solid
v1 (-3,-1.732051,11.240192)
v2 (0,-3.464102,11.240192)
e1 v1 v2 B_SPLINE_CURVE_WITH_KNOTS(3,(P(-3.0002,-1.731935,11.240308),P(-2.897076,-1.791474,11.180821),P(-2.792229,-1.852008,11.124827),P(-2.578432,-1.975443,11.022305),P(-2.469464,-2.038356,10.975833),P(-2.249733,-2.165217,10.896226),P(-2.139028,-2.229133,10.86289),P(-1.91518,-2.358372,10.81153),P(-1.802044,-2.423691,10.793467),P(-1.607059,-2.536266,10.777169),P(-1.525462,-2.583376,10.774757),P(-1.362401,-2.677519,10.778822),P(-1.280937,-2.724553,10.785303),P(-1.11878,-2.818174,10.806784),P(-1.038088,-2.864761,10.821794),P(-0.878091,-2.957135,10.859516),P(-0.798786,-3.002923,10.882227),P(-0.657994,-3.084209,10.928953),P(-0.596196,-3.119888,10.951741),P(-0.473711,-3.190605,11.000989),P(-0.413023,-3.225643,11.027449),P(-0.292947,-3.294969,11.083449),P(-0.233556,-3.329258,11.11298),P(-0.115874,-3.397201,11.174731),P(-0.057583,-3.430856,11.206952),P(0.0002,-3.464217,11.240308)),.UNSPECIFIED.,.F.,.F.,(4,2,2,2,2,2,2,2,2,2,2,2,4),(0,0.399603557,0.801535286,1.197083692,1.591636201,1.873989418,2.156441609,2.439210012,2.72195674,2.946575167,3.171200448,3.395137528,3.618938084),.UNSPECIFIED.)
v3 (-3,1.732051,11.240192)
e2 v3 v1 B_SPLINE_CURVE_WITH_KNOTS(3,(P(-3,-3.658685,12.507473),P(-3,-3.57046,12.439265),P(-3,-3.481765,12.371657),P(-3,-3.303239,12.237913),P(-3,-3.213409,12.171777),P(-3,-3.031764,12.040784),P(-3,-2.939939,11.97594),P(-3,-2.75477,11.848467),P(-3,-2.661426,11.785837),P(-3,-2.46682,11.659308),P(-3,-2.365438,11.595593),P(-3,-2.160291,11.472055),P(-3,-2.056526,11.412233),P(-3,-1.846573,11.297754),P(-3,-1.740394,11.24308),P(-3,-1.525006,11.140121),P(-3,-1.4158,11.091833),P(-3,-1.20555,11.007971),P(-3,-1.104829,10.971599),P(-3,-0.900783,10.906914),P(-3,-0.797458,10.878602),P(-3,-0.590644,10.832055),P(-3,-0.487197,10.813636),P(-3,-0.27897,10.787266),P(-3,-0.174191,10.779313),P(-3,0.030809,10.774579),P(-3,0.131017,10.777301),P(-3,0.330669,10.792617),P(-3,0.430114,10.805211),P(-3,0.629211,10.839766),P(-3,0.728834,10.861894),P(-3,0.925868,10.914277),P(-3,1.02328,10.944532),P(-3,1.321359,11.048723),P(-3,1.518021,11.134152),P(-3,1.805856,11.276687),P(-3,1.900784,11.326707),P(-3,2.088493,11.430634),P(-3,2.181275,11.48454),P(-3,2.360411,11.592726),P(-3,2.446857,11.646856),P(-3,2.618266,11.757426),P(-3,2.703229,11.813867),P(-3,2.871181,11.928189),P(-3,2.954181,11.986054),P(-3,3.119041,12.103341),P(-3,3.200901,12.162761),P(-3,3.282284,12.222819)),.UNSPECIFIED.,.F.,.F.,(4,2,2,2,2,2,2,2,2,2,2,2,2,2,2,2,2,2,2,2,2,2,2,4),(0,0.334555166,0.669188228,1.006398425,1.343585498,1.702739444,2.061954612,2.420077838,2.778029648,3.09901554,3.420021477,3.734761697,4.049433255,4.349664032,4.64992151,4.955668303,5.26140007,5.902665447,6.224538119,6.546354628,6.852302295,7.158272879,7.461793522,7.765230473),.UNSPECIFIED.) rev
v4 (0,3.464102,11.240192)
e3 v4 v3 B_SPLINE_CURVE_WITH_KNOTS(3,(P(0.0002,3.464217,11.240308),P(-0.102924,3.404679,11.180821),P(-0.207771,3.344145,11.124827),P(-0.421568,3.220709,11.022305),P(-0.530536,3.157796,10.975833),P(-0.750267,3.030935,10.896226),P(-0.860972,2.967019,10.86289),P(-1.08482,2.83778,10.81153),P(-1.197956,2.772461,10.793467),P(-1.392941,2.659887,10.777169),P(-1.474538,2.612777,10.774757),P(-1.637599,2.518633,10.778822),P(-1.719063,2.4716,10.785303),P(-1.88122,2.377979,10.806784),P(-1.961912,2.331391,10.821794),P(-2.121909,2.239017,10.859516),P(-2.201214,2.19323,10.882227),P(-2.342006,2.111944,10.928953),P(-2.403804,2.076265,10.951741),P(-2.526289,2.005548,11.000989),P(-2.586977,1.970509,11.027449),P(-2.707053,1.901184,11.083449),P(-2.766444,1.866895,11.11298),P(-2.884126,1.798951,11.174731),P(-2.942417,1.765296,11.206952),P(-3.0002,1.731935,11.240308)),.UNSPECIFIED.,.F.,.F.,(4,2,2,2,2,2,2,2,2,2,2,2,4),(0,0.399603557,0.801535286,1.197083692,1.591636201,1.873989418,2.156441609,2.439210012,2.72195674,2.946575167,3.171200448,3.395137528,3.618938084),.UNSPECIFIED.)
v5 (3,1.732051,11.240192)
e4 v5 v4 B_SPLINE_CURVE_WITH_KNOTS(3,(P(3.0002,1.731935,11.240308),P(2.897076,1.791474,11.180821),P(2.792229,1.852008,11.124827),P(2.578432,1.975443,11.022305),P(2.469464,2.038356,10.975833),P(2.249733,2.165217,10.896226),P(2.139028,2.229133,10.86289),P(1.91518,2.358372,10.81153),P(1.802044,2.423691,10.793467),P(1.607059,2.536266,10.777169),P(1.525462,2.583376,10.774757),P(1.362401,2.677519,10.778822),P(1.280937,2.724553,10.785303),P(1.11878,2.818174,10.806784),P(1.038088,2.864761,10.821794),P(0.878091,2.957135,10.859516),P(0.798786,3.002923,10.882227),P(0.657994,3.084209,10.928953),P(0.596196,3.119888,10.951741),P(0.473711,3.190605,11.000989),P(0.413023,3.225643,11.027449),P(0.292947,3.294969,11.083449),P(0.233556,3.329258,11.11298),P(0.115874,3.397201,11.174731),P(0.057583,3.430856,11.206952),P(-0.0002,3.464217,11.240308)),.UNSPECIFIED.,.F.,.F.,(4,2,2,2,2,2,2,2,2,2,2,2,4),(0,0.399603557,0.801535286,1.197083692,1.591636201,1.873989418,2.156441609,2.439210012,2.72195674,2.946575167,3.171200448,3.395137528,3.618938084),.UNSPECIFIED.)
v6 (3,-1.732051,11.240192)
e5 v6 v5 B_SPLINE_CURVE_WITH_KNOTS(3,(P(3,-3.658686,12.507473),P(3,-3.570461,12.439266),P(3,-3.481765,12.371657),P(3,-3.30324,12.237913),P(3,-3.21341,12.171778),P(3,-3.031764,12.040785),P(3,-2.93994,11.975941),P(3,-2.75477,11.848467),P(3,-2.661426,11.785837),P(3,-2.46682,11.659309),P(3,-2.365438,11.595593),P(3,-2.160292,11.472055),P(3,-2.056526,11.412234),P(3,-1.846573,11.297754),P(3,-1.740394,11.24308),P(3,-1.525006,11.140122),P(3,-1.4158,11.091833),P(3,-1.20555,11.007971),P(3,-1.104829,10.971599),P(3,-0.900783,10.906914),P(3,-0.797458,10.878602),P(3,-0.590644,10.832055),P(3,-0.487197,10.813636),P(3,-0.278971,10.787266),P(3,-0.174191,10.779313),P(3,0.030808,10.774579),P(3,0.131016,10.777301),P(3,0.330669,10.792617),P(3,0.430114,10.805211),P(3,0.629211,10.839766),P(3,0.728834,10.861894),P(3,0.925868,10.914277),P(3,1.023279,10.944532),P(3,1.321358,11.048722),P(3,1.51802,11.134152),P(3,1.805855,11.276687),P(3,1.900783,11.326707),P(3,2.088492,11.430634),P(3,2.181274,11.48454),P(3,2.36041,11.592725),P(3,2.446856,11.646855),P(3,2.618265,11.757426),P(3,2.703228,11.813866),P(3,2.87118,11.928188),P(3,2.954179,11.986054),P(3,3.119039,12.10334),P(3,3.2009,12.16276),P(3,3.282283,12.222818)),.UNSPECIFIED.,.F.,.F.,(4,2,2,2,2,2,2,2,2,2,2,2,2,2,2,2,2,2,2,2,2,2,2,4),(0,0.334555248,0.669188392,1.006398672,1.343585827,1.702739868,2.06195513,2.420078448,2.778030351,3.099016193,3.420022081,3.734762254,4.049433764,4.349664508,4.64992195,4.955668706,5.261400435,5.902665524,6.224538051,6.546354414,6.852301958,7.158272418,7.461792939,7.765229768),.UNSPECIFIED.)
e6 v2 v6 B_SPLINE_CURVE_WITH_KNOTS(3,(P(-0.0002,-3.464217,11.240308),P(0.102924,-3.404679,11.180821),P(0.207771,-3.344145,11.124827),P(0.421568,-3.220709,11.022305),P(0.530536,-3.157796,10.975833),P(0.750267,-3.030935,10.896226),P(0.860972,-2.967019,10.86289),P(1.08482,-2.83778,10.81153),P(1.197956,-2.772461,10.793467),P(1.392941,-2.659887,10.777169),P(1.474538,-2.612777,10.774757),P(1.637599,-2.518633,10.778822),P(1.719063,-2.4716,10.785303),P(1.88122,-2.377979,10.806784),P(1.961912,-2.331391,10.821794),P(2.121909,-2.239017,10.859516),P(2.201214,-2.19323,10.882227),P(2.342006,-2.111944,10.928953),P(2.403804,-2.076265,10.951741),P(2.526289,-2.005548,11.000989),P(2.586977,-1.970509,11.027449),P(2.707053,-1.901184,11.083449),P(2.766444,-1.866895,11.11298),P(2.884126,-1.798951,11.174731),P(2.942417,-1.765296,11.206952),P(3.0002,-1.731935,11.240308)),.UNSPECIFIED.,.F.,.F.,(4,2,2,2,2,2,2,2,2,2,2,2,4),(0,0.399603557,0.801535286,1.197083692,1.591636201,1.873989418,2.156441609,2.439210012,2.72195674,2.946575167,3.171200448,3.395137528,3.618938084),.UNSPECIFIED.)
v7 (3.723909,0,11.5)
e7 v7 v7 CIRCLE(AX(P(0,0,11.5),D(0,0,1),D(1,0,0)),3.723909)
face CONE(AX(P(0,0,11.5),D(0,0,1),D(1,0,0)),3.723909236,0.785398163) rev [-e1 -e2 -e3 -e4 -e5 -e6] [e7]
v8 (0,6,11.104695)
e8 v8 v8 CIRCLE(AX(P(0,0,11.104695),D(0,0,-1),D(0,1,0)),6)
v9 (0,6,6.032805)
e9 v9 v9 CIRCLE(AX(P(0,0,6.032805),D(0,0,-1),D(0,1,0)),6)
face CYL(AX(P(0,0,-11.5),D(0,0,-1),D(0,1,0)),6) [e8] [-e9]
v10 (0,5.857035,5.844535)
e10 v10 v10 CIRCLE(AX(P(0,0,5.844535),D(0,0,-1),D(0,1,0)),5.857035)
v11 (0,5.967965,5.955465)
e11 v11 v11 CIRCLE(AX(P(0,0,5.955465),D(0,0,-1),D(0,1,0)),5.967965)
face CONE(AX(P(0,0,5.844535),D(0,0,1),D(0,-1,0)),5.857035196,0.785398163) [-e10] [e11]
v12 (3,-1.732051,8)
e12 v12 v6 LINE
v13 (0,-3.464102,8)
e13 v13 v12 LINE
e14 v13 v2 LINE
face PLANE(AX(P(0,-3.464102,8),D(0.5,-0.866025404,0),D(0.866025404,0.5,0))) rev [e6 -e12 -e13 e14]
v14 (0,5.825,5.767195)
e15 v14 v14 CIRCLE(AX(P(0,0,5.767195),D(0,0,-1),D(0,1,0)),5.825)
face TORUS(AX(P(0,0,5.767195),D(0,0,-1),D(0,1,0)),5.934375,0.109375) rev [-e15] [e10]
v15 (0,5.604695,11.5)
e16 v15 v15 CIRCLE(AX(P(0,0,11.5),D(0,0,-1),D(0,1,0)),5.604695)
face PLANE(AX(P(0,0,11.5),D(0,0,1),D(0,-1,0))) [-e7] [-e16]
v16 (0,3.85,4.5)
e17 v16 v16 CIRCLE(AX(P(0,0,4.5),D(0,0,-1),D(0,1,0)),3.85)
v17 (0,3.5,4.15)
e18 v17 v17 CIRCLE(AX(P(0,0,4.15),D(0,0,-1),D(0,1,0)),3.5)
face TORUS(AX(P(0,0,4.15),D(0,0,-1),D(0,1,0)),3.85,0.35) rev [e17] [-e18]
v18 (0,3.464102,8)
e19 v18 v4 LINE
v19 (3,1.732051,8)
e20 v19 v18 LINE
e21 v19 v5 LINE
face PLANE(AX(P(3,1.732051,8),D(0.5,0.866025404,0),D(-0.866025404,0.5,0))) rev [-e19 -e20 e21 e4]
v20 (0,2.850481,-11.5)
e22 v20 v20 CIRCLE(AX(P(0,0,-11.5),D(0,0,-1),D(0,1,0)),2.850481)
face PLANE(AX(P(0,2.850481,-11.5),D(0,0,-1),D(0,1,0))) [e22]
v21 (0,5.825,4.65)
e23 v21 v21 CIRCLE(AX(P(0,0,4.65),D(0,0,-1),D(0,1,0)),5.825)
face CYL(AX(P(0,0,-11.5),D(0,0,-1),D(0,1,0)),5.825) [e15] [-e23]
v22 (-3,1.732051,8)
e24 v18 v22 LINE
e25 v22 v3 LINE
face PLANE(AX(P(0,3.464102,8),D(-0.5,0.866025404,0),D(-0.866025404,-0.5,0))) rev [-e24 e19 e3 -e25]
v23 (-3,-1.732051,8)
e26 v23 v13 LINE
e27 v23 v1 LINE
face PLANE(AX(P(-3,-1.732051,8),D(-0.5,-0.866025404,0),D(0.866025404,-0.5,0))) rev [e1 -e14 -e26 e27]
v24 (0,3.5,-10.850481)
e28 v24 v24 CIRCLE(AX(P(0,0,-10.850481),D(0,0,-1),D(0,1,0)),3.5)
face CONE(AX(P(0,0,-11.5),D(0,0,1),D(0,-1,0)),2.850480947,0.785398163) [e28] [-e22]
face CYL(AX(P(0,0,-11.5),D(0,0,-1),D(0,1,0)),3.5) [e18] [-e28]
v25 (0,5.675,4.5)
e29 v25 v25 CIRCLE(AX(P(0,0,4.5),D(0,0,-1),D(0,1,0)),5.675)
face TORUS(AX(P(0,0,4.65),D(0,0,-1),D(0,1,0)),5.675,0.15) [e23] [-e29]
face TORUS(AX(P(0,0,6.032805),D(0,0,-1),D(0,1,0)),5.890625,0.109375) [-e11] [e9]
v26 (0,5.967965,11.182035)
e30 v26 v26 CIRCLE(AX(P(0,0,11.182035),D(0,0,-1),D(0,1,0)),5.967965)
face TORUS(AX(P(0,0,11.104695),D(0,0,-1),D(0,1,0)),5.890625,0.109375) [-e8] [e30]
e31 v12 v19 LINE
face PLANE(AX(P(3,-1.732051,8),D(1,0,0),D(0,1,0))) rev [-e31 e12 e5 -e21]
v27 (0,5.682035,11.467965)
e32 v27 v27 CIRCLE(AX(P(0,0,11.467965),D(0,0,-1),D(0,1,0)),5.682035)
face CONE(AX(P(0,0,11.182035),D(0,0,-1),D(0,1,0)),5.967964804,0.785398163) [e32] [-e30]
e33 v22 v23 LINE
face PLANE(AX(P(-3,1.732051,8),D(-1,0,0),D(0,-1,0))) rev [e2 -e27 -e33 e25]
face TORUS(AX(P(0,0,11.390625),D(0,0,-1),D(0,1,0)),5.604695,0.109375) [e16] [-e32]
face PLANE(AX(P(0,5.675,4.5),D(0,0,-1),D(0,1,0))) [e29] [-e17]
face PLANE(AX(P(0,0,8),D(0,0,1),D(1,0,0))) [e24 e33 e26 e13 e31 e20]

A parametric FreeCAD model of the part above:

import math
import FreeCAD as App
import Part
import Sketcher

V = App.Vector
Q = App.Units.Quantity


def faces_at(feature, points):
    """Names of the faces that lie closest to the given points."""
    faces = feature.Shape.Faces
    near = lambda p: min(range(len(faces)), key=lambda i: faces[i].distToShape(Part.Vertex(*p))[0])
    return sorted({f"Face{near(p) + 1}" for p in points})

doc = App.newDocument("Part")
body = doc.addObject("PartDesign::Body", "Body")

sketch1 = body.newObject("Sketcher::SketchObject", "Sketch")
sketch1.AttachmentSupport = (doc.getObject("YZ_Plane"), [""])
sketch1.MapMode = "FlatFace"
sketch1.addGeometry(Part.LineSegment(V(5.6, 11.5, 0), V(0, 11.5, 0)), False)
sketch1.addGeometry(Part.LineSegment(V(0, 11.5, 0), V(0, -11.5, 0)), False)
sketch1.addGeometry(Part.LineSegment(V(0, -11.5, 0), V(2.85, -11.5, 0)), False)
sketch1.addGeometry(Part.LineSegment(V(2.85, -11.5, 0), V(3.5, -10.85, 0)), False)
sketch1.addGeometry(Part.LineSegment(V(3.5, -10.85, 0), V(3.5, 4.15, 0)), False)
sketch1.addGeometry(Part.ArcOfCircle(Part.Circle(V(3.85, 4.15, 0), V(0, 0, 1), 0.35), math.radians(90), math.radians(180)), False)
sketch1.addGeometry(Part.LineSegment(V(3.85, 4.5, 0), V(5.67, 4.5, 0)), False)
sketch1.addGeometry(Part.ArcOfCircle(Part.Circle(V(5.67, 4.65, 0), V(0, 0, 1), 0.15), math.radians(-90), math.radians(0)), False)
sketch1.addGeometry(Part.LineSegment(V(5.83, 4.65, 0), V(5.83, 5.77, 0)), False)
sketch1.addGeometry(Part.ArcOfCircle(Part.Circle(V(5.93, 5.77, 0), V(0, 0, 1), 0.11), math.radians(135), math.radians(180)), False)
sketch1.addGeometry(Part.LineSegment(V(5.86, 5.84, 0), V(5.97, 5.96, 0)), False)
sketch1.addGeometry(Part.ArcOfCircle(Part.Circle(V(5.89, 6.03, 0), V(0, 0, 1), 0.11), math.radians(-45), math.radians(0)), False)
sketch1.addGeometry(Part.LineSegment(V(6, 6.03, 0), V(6, 11.1, 0)), False)
sketch1.addGeometry(Part.ArcOfCircle(Part.Circle(V(5.89, 11.1, 0), V(0, 0, 1), 0.11), math.radians(0), math.radians(45)), False)
sketch1.addGeometry(Part.LineSegment(V(5.97, 11.18, 0), V(5.68, 11.47, 0)), False)
sketch1.addGeometry(Part.ArcOfCircle(Part.Circle(V(5.6, 11.39, 0), V(0, 0, 1), 0.11), math.radians(45), math.radians(90)), False)
sketch1.addConstraint(Sketcher.Constraint("Coincident", 0, 2, 1, 1))
sketch1.addConstraint(Sketcher.Constraint("Coincident", 1, 2, 2, 1))
sketch1.addConstraint(Sketcher.Constraint("Coincident", 2, 2, 3, 1))
sketch1.addConstraint(Sketcher.Constraint("Coincident", 3, 2, 4, 1))
sketch1.addConstraint(Sketcher.Constraint("Tangent", 4, 2, 5, 2))
sketch1.addConstraint(Sketcher.Constraint("Tangent", 5, 1, 6, 1))
sketch1.addConstraint(Sketcher.Constraint("Tangent", 6, 2, 7, 1))
sketch1.addConstraint(Sketcher.Constraint("Tangent", 7, 2, 8, 1))
sketch1.addConstraint(Sketcher.Constraint("Tangent", 8, 2, 9, 2))
sketch1.addConstraint(Sketcher.Constraint("Tangent", 9, 1, 10, 1))
sketch1.addConstraint(Sketcher.Constraint("Tangent", 10, 2, 11, 1))
sketch1.addConstraint(Sketcher.Constraint("Tangent", 11, 2, 12, 1))
sketch1.addConstraint(Sketcher.Constraint("Tangent", 12, 2, 13, 1))
sketch1.addConstraint(Sketcher.Constraint("Tangent", 13, 2, 14, 1))
sketch1.addConstraint(Sketcher.Constraint("Tangent", 14, 2, 15, 1))
sketch1.addConstraint(Sketcher.Constraint("Tangent", 15, 2, 0, 1))
sketch1.addConstraint(Sketcher.Constraint("Horizontal", 0))
sketch1.addConstraint(Sketcher.Constraint("Vertical", 1))
sketch1.addConstraint(Sketcher.Constraint("Horizontal", 2))
sketch1.addConstraint(Sketcher.Constraint("Vertical", 4))
sketch1.addConstraint(Sketcher.Constraint("Horizontal", 6))
sketch1.addConstraint(Sketcher.Constraint("Vertical", 8))
sketch1.addConstraint(Sketcher.Constraint("Vertical", 12))
sketch1.addConstraint(Sketcher.Constraint("Equal", 9, 11))
sketch1.addConstraint(Sketcher.Constraint("Equal", 11, 13))
sketch1.addConstraint(Sketcher.Constraint("Equal", 13, 15))
sketch1.addConstraint(Sketcher.Constraint("Symmetric", 0, 2, 1, 2, -1, 1))
sketch1.addConstraint(Sketcher.Constraint("Parallel", 3, 10))
sketch1.addConstraint(Sketcher.Constraint("Perpendicular", 10, 14))
sketch1.addConstraint(Sketcher.Constraint("Vertical", 10, 2, 13, 2))
sketch1.addConstraint(Sketcher.Constraint("DistanceY", 1, 2, 1, 1, 23.0))
sketch1.addConstraint(Sketcher.Constraint("Radius", 5, 0.35))
sketch1.addConstraint(Sketcher.Constraint("Radius", 7, 0.15))
sketch1.addConstraint(Sketcher.Constraint("DistanceX", -1, 1, 11, 2, 6.0))
sketch1.addConstraint(Sketcher.Constraint("DistanceX", -1, 1, 3, 2, 3.5))
sketch1.addConstraint(Sketcher.Constraint("DistanceY", -1, 1, 5, 1, 4.5))
sketch1.addConstraint(Sketcher.Constraint("DistanceX", 6, 1, 6, 2, 1.825))
sketch1.addConstraint(Sketcher.Constraint("Radius", 9, 0.109375))
sketch1.addConstraint(Sketcher.Constraint("DistanceX", 2, 1, 2, 2, 2.850481))
sketch1.addConstraint(Sketcher.Constraint("DistanceY", 12, 1, 12, 2, 5.071891))
sketch1.addConstraint(Sketcher.Constraint("DistanceX", 0, 2, 0, 1, 5.604695))
revolution = body.newObject("PartDesign::Revolution", "Revolution")
revolution.Profile = sketch1
revolution.ReferenceAxis = (sketch1, ["V_Axis"])
revolution.Angle = 360

sketch2 = body.newObject("Sketcher::SketchObject", "Sketch001")
sketch2.AttachmentSupport = (doc.getObject("XY_Plane"), [""])
sketch2.MapMode = "FlatFace"
sketch2.AttachmentOffset = App.Placement(V(0, 0, 8), App.Rotation())
sketch2.addGeometry(Part.LineSegment(V(3, -1.7, 0), V(3, 1.7, 0)), False)
sketch2.addGeometry(Part.LineSegment(V(3, 1.7, 0), V(0, 3.5, 0)), False)
sketch2.addGeometry(Part.LineSegment(V(0, 3.5, 0), V(-3, 1.7, 0)), False)
sketch2.addGeometry(Part.LineSegment(V(-3, 1.7, 0), V(-3, -1.7, 0)), False)
sketch2.addGeometry(Part.LineSegment(V(-3, -1.7, 0), V(0, -3.5, 0)), False)
sketch2.addGeometry(Part.LineSegment(V(0, -3.5, 0), V(3, -1.7, 0)), False)
sketch2.addConstraint(Sketcher.Constraint("Coincident", 0, 2, 1, 1))
sketch2.addConstraint(Sketcher.Constraint("Coincident", 1, 2, 2, 1))
sketch2.addConstraint(Sketcher.Constraint("Coincident", 2, 2, 3, 1))
sketch2.addConstraint(Sketcher.Constraint("Coincident", 3, 2, 4, 1))
sketch2.addConstraint(Sketcher.Constraint("Coincident", 4, 2, 5, 1))
sketch2.addConstraint(Sketcher.Constraint("Coincident", 5, 2, 0, 1))
sketch2.addConstraint(Sketcher.Constraint("Vertical", 0))
sketch2.addConstraint(Sketcher.Constraint("Vertical", 3))
sketch2.addConstraint(Sketcher.Constraint("Symmetric", 0, 2, 3, 2, -1, 1))
sketch2.addConstraint(Sketcher.Constraint("Symmetric", 1, 2, 4, 2, -1, 1))
sketch2.addConstraint(Sketcher.Constraint("PointOnObject", 1, 2, -2))
sketch2.addConstraint(Sketcher.Constraint("Parallel", 2, 5))
sketch2.addConstraint(Sketcher.Constraint("Horizontal", 0, 2, 2, 2))
sketch2.addConstraint(Sketcher.Constraint("Angle", 1, Q("150 deg")))
sketch2.addConstraint(Sketcher.Constraint("DistanceX", -1, 1, 0, 2, 3.0))
sketch2.addConstraint(Sketcher.Constraint("DistanceY", 0, 1, 0, 2, 3.464102))
pocket1 = body.newObject("PartDesign::Pocket", "Pocket")
pocket1.Profile = sketch2
pocket1.Length = 3.5
pocket1.Reversed = True
body2 = doc.addObject("PartDesign::Body", "Body001")

sketch3 = body2.newObject("Sketcher::SketchObject", "Sketch002")
sketch3.AttachmentSupport = (doc.getObject("XY_Plane001"), [""])
sketch3.MapMode = "FlatFace"
sketch3.AttachmentOffset = App.Placement(V(0, 0, 11.5), App.Rotation())
sketch3.addGeometry(Part.Circle(V(0, 0, 0), V(0, 0, 1), 3.7), False)
sketch3.addConstraint(Sketcher.Constraint("Coincident", 0, 3, -1, 1))
sketch3.addConstraint(Sketcher.Constraint("Diameter", 0, 7.447818))
pad1 = body2.newObject("PartDesign::Pad", "Pad")
pad1.Profile = sketch3
pad1.Length = 3.5
pad1.Reversed = True
doc.recompute()

datumplane = body2.newObject("PartDesign::Plane", "DatumPlane")
datumplane.AttachmentSupport = (doc.getObject("XY_Plane001"), [""])
datumplane.MapMode = "FlatFace"
datumplane.AttachmentOffset = App.Placement(V(0, 0, 11.5), App.Rotation())
draft = body2.newObject("PartDesign::Draft", "Draft")
draft.Base = (pad1, faces_at(pad1, [(-3.724, 0, 9.75)]))
draft.NeutralPlane = (datumplane, [""])
draft.Angle = 45
draft.Reversed = True
doc.recompute()

boolean = body.newObject("PartDesign::Boolean", "Boolean")
boolean.Type = "Cut"
boolean.addObjects([body2])

doc.recompute()
